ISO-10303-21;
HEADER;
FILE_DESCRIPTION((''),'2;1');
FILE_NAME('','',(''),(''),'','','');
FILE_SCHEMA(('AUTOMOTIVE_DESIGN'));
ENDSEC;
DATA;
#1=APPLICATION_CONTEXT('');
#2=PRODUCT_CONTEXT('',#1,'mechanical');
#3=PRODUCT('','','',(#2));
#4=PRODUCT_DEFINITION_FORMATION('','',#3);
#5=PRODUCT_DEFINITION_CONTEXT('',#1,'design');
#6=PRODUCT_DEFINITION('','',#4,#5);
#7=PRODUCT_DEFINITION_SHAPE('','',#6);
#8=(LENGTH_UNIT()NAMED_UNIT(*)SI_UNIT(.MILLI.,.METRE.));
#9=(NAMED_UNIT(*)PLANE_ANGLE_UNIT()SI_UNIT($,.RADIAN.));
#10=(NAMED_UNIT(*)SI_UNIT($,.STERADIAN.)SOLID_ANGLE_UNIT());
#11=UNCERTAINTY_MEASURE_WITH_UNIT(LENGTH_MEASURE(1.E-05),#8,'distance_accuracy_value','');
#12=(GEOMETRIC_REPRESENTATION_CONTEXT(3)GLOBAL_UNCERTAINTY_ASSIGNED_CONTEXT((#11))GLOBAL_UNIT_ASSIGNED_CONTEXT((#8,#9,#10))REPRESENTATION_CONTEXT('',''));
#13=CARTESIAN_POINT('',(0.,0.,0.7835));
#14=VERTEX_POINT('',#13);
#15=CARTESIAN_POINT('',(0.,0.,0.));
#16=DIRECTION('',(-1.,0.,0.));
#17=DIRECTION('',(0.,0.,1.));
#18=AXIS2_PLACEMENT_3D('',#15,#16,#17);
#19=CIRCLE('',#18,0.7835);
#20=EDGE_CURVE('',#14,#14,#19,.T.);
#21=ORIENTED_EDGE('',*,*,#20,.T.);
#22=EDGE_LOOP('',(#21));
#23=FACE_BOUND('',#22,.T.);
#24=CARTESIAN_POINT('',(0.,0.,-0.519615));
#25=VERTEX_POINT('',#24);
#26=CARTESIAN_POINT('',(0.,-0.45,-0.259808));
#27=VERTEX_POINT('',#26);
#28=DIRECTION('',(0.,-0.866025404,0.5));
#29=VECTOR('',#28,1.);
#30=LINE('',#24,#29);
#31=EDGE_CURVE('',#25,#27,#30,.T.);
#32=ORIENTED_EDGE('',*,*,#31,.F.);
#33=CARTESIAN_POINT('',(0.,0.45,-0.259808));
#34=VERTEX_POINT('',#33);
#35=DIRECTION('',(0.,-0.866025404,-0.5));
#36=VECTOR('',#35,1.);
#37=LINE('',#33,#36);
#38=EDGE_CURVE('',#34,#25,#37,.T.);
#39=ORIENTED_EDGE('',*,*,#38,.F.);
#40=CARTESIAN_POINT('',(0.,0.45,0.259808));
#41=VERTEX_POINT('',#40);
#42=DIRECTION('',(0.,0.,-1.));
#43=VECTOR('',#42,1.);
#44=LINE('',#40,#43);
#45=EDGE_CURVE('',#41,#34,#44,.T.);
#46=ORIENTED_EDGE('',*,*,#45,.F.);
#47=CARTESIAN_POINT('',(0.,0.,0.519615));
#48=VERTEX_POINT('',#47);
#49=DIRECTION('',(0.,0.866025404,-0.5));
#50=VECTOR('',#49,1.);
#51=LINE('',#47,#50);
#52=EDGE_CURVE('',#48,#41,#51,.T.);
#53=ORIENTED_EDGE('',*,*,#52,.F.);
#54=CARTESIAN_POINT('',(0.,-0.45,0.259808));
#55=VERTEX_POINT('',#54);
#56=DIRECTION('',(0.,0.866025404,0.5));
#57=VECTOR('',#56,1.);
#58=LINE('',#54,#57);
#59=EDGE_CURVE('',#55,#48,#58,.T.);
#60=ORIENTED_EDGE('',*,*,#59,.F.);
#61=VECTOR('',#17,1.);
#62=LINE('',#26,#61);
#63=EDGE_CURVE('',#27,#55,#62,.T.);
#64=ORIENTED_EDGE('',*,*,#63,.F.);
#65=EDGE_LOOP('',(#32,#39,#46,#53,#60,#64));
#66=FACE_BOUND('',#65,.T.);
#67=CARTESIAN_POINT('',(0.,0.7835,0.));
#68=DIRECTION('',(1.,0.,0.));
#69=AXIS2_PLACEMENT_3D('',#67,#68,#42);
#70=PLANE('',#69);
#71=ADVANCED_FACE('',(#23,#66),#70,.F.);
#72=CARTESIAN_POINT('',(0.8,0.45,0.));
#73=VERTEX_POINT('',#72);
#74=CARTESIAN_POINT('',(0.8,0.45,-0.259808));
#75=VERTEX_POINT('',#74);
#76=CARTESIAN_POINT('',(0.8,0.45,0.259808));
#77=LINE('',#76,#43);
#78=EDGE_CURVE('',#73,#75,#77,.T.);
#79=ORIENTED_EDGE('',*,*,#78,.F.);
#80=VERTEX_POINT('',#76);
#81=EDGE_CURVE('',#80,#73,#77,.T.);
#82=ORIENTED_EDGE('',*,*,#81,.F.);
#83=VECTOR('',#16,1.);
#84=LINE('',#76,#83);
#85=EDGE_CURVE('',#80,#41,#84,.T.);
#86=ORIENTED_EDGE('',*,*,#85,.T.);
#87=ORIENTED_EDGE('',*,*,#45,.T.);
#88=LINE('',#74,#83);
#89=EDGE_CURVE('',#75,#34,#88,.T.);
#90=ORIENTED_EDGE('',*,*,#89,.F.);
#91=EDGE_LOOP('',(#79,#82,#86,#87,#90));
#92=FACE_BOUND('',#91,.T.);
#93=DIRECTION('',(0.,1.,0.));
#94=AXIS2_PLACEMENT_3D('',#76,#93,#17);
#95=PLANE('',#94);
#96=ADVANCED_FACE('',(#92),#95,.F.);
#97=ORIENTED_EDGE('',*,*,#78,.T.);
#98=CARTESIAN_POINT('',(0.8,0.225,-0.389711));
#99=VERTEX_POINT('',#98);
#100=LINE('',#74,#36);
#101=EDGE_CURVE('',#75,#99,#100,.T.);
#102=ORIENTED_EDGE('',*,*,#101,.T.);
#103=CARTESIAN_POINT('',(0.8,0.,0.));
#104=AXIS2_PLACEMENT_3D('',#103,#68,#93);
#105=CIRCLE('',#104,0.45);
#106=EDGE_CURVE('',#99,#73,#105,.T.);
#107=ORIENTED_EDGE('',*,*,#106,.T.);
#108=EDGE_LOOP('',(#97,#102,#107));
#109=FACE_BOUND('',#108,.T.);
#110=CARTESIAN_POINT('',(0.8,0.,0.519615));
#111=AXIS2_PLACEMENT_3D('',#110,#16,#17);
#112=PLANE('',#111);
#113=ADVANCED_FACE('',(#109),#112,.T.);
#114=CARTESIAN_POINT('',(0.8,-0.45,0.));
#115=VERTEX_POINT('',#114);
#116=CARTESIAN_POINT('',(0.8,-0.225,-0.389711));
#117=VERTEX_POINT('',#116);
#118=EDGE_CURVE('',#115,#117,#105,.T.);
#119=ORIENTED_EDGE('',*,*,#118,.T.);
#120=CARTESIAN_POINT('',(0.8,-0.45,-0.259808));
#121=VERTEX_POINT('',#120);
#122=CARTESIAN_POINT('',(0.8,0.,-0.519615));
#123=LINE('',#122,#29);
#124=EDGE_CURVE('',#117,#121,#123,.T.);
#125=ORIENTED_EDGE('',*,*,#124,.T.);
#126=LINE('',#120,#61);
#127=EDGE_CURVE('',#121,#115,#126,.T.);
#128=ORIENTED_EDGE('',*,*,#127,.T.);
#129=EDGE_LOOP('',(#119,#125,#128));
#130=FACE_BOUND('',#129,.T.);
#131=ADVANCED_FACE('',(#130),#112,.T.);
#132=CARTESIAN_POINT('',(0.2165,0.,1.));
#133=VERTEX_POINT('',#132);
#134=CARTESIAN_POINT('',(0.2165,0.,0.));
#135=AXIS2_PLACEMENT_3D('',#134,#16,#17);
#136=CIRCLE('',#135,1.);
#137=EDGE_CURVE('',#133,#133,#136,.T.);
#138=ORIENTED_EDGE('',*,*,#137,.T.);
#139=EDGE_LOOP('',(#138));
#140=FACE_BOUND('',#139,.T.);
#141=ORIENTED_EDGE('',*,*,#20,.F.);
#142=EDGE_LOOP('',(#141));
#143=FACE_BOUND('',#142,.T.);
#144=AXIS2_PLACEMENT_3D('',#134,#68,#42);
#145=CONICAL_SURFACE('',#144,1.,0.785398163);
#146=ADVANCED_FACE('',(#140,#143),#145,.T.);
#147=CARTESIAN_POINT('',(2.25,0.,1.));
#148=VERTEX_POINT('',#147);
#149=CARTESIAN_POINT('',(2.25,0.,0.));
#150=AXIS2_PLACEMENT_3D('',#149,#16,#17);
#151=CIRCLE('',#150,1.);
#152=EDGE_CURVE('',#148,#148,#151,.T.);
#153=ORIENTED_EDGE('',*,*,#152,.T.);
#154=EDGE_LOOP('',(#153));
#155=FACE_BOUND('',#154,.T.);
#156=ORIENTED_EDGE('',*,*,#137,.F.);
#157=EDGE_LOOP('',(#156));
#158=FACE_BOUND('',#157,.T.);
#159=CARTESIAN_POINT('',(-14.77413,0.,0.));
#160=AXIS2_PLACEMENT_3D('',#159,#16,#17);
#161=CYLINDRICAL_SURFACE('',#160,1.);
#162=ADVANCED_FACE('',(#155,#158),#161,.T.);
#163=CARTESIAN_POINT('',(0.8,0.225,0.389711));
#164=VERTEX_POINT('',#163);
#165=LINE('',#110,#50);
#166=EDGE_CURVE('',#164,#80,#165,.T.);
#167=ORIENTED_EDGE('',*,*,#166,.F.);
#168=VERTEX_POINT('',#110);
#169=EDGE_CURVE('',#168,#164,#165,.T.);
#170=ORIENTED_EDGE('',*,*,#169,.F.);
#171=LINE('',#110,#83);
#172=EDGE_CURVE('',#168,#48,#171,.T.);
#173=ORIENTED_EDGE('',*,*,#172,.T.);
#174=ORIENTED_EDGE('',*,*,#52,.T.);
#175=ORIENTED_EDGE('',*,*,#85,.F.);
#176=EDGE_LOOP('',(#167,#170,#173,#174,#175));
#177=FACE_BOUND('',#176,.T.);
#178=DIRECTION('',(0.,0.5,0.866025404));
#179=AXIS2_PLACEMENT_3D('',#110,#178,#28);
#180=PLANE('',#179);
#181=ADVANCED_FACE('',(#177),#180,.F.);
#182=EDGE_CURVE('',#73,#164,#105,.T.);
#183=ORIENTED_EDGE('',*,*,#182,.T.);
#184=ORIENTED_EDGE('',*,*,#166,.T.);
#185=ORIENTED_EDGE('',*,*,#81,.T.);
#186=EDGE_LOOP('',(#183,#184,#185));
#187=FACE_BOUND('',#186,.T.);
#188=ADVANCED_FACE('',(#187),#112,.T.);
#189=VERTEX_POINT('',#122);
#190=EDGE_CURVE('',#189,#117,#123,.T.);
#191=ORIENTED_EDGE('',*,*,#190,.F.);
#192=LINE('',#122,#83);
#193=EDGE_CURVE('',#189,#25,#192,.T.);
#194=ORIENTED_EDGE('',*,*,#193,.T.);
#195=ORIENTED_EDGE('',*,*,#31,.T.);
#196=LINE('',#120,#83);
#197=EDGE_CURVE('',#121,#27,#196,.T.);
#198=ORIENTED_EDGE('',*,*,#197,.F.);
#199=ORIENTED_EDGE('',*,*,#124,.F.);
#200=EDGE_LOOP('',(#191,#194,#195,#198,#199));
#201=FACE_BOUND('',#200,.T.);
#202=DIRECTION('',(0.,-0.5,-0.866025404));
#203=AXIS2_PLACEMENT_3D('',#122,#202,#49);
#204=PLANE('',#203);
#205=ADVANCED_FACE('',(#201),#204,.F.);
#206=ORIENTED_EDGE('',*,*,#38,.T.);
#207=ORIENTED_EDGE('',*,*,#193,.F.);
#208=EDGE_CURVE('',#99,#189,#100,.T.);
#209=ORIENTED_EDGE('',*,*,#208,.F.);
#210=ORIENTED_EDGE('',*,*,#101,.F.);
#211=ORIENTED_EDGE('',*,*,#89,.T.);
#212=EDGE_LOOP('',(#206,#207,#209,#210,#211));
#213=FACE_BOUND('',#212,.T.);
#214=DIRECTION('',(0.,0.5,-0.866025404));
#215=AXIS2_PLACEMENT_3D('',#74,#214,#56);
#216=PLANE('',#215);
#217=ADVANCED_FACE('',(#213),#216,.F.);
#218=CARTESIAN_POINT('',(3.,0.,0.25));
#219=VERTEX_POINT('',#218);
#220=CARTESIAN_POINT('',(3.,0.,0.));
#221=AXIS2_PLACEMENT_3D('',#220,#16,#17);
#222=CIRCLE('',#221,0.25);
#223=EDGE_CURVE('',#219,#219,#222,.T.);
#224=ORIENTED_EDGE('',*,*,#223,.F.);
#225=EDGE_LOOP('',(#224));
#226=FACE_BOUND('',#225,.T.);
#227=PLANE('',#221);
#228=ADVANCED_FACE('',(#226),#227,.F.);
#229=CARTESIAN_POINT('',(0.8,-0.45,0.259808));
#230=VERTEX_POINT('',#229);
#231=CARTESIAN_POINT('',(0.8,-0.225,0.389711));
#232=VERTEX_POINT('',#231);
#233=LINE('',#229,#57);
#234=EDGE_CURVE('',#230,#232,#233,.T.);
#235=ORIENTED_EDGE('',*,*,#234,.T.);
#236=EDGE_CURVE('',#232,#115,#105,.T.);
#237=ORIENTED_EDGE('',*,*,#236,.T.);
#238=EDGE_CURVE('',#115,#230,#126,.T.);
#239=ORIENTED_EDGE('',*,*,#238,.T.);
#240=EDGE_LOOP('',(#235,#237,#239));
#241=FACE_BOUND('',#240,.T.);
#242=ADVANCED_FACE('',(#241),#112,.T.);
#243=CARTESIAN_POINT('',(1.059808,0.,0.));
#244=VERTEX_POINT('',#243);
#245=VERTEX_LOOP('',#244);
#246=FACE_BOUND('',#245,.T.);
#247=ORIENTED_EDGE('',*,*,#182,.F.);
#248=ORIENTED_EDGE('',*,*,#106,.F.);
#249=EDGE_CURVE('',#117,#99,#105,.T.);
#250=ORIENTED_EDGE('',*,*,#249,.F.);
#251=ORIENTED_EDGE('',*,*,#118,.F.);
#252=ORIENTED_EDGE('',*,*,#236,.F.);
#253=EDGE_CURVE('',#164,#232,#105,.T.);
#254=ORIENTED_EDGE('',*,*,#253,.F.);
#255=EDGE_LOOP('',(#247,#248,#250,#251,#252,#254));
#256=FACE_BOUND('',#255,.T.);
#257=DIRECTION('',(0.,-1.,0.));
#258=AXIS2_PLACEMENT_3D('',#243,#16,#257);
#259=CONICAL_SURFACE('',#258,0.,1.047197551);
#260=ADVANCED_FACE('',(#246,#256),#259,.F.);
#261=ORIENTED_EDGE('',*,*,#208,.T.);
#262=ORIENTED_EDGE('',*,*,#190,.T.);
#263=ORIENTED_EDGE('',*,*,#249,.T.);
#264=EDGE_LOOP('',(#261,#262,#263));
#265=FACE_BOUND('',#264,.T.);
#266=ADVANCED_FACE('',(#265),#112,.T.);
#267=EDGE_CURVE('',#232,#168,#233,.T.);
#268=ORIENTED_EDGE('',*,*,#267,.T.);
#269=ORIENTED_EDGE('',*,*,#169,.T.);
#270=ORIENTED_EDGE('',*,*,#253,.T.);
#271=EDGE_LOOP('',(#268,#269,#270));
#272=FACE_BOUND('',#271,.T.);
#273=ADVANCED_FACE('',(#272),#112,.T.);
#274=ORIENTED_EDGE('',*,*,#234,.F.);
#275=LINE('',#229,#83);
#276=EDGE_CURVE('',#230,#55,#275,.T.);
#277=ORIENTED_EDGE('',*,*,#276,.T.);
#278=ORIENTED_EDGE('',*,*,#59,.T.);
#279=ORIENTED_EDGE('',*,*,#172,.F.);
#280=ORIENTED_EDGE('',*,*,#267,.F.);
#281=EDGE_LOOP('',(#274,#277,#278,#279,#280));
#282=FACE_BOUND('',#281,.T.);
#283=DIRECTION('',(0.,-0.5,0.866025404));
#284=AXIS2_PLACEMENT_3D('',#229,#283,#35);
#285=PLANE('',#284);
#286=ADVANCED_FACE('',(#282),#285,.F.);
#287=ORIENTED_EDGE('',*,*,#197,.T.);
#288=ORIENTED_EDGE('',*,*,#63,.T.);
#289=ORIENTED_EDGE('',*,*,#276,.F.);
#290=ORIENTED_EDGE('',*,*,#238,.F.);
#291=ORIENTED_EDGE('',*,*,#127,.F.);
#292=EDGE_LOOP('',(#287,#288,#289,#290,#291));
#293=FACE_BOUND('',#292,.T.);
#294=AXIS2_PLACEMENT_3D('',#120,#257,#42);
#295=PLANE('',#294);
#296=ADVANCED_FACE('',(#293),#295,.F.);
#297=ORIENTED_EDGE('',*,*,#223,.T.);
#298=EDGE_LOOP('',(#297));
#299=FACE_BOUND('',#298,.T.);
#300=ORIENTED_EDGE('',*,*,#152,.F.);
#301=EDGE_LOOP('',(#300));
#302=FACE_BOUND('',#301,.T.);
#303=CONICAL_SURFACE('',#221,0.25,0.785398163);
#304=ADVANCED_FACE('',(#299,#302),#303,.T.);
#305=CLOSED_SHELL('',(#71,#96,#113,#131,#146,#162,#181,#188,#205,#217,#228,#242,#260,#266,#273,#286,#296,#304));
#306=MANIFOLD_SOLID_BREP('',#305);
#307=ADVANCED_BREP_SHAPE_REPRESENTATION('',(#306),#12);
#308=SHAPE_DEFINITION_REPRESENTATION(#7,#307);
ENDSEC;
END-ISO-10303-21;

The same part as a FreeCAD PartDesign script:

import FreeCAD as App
import Part
import Sketcher
Q = App.Units.Quantity

doc = App.newDocument("Part")
body = doc.addObject("PartDesign::Body", "Body")

# Sketch on XY plane
sketch1 = body.newObject("Sketcher::SketchObject", "Sketch")
sketch1.AttachmentSupport = (doc.getObject("XY_Plane"), [""])
sketch1.MapMode = "FlatFace"
sketch1.addGeometry([
    Part.LineSegment(App.Vector(0, 0, 0), App.Vector(3, 0, 0)),  # 0
    Part.LineSegment(App.Vector(3, 0, 0), App.Vector(3, 0.25, 0)),  # 1
    Part.LineSegment(App.Vector(3, 0.25, 0), App.Vector(2.25, 1, 0)),  # 2
    Part.LineSegment(App.Vector(2.25, 1, 0), App.Vector(0.2165, 1, 0)),  # 3
    Part.LineSegment(App.Vector(0.2165, 1, 0), App.Vector(0, 0.7835, 0)),  # 4
    Part.LineSegment(App.Vector(0, 0.7835, 0), App.Vector(0, 0, 0)),  # 5
], False)
sketch1.addConstraint([
    Sketcher.Constraint("Coincident", 0, 2, 1, 1),
    Sketcher.Constraint("Coincident", 1, 2, 2, 1),
    Sketcher.Constraint("Coincident", 2, 2, 3, 1),
    Sketcher.Constraint("Coincident", 3, 2, 4, 1),
    Sketcher.Constraint("Coincident", 4, 2, 5, 1),
    Sketcher.Constraint("Coincident", 5, 2, 0, 1),
    Sketcher.Constraint("Horizontal", 0),
    Sketcher.Constraint("Vertical", 1),
    Sketcher.Constraint("Horizontal", 3),
    Sketcher.Constraint("Vertical", 5),
    Sketcher.Constraint("Coincident", 5, 2, -1, 1),
    Sketcher.Constraint("Perpendicular", 2, 4),
    Sketcher.Constraint("DistanceX", 0, 1, 0, 2, 3.0),
    Sketcher.Constraint("Angle", 2, Q("135 deg")),
    Sketcher.Constraint("DistanceY", -1, 1, 2, 2, 1.0),
    Sketcher.Constraint("DistanceY", 1, 1, 1, 2, 0.25),
    Sketcher.Constraint("DistanceX", 3, 2, 3, 1, 2.0335),
])
revolution = body.newObject("PartDesign::Revolution", "Revolution")
revolution.Profile = sketch1
revolution.ReferenceAxis = (sketch1, ["H_Axis"])
revolution.Angle = 360

# Sketch on YZ plane
sketch2 = body.newObject("Sketcher::SketchObject", "Sketch001")
sketch2.AttachmentSupport = (doc.getObject("YZ_Plane"), [""])
sketch2.MapMode = "FlatFace"
sketch2.addGeometry([
    Part.LineSegment(App.Vector(0, 0.519615, 0), App.Vector(0.45, 0.259808, 0)),  # 0
    Part.LineSegment(App.Vector(0.45, 0.259808, 0), App.Vector(0.45, -0.259808, 0)),  # 1
    Part.LineSegment(App.Vector(0.45, -0.259808, 0), App.Vector(0, -0.519615, 0)),  # 2
    Part.LineSegment(App.Vector(0, -0.519615, 0), App.Vector(-0.45, -0.259808, 0)),  # 3
    Part.LineSegment(App.Vector(-0.45, -0.259808, 0), App.Vector(-0.45, 0.259808, 0)),  # 4
    Part.LineSegment(App.Vector(-0.45, 0.259808, 0), App.Vector(0, 0.519615, 0)),  # 5
], False)
sketch2.addConstraint([
    Sketcher.Constraint("Coincident", 0, 2, 1, 1),
    Sketcher.Constraint("Coincident", 1, 2, 2, 1),
    Sketcher.Constraint("Coincident", 2, 2, 3, 1),
    Sketcher.Constraint("Coincident", 3, 2, 4, 1),
    Sketcher.Constraint("Coincident", 4, 2, 5, 1),
    Sketcher.Constraint("Coincident", 5, 2, 0, 1),
    Sketcher.Constraint("Vertical", 1),
    Sketcher.Constraint("Vertical", 4),
    Sketcher.Constraint("Symmetric", 0, 2, 3, 2, -1, 1),
    Sketcher.Constraint("Symmetric", 2, 2, 5, 2, -1, 1),
    Sketcher.Constraint("PointOnObject", 2, 2, -2),
    Sketcher.Constraint("Parallel", 2, 5),
    Sketcher.Constraint("Horizontal", 1, 2, 3, 2),
    Sketcher.Constraint("Angle", 0, Q("-30 deg")),
    Sketcher.Constraint("DistanceX", 3, 2, 1, 2, 0.9),
    Sketcher.Constraint("DistanceY", 1, 2, 1, 1, 0.519615),
])
pocket1 = body.newObject("PartDesign::Pocket", "Pocket")
pocket1.Profile = sketch2
pocket1.Length = 0.8
pocket1.Reversed = True

# Sketch on XY plane
sketch3 = body.newObject("Sketcher::SketchObject", "Sketch002")
sketch3.AttachmentSupport = (doc.getObject("XY_Plane"), [""])
sketch3.MapMode = "FlatFace"
sketch3.addGeometry([
    Part.LineSegment(App.Vector(1.059808, 0, 0), App.Vector(0.8, 0.45, 0)),
    Part.LineSegment(App.Vector(0.8, 0.45, 0), App.Vector(0.8, 0, 0)),
    Part.LineSegment(App.Vector(0.8, 0, 0), App.Vector(1.059808, 0, 0)),
], False)
sketch3.addConstraint([
    Sketcher.Constraint("Coincident", 0, 2, 1, 1),
    Sketcher.Constraint("Coincident", 1, 2, 2, 1),
    Sketcher.Constraint("Coincident", 2, 2, 0, 1),
    Sketcher.Constraint("Vertical", 1),
    Sketcher.Constraint("Horizontal", 2),
    Sketcher.Constraint("PointOnObject", 1, 2, -1),
    Sketcher.Constraint("Angle", 0, Q("120 deg")),
    Sketcher.Constraint("DistanceY", 1, 2, 1, 1, 0.45),
    Sketcher.Constraint("DistanceX", -1, 1, 0, 2, 0.8),
])
groove = body.newObject("PartDesign::Groove", "Groove")
groove.Profile = sketch3
groove.ReferenceAxis = (sketch3, ["H_Axis"])
groove.Angle = 360

doc.recompute()
